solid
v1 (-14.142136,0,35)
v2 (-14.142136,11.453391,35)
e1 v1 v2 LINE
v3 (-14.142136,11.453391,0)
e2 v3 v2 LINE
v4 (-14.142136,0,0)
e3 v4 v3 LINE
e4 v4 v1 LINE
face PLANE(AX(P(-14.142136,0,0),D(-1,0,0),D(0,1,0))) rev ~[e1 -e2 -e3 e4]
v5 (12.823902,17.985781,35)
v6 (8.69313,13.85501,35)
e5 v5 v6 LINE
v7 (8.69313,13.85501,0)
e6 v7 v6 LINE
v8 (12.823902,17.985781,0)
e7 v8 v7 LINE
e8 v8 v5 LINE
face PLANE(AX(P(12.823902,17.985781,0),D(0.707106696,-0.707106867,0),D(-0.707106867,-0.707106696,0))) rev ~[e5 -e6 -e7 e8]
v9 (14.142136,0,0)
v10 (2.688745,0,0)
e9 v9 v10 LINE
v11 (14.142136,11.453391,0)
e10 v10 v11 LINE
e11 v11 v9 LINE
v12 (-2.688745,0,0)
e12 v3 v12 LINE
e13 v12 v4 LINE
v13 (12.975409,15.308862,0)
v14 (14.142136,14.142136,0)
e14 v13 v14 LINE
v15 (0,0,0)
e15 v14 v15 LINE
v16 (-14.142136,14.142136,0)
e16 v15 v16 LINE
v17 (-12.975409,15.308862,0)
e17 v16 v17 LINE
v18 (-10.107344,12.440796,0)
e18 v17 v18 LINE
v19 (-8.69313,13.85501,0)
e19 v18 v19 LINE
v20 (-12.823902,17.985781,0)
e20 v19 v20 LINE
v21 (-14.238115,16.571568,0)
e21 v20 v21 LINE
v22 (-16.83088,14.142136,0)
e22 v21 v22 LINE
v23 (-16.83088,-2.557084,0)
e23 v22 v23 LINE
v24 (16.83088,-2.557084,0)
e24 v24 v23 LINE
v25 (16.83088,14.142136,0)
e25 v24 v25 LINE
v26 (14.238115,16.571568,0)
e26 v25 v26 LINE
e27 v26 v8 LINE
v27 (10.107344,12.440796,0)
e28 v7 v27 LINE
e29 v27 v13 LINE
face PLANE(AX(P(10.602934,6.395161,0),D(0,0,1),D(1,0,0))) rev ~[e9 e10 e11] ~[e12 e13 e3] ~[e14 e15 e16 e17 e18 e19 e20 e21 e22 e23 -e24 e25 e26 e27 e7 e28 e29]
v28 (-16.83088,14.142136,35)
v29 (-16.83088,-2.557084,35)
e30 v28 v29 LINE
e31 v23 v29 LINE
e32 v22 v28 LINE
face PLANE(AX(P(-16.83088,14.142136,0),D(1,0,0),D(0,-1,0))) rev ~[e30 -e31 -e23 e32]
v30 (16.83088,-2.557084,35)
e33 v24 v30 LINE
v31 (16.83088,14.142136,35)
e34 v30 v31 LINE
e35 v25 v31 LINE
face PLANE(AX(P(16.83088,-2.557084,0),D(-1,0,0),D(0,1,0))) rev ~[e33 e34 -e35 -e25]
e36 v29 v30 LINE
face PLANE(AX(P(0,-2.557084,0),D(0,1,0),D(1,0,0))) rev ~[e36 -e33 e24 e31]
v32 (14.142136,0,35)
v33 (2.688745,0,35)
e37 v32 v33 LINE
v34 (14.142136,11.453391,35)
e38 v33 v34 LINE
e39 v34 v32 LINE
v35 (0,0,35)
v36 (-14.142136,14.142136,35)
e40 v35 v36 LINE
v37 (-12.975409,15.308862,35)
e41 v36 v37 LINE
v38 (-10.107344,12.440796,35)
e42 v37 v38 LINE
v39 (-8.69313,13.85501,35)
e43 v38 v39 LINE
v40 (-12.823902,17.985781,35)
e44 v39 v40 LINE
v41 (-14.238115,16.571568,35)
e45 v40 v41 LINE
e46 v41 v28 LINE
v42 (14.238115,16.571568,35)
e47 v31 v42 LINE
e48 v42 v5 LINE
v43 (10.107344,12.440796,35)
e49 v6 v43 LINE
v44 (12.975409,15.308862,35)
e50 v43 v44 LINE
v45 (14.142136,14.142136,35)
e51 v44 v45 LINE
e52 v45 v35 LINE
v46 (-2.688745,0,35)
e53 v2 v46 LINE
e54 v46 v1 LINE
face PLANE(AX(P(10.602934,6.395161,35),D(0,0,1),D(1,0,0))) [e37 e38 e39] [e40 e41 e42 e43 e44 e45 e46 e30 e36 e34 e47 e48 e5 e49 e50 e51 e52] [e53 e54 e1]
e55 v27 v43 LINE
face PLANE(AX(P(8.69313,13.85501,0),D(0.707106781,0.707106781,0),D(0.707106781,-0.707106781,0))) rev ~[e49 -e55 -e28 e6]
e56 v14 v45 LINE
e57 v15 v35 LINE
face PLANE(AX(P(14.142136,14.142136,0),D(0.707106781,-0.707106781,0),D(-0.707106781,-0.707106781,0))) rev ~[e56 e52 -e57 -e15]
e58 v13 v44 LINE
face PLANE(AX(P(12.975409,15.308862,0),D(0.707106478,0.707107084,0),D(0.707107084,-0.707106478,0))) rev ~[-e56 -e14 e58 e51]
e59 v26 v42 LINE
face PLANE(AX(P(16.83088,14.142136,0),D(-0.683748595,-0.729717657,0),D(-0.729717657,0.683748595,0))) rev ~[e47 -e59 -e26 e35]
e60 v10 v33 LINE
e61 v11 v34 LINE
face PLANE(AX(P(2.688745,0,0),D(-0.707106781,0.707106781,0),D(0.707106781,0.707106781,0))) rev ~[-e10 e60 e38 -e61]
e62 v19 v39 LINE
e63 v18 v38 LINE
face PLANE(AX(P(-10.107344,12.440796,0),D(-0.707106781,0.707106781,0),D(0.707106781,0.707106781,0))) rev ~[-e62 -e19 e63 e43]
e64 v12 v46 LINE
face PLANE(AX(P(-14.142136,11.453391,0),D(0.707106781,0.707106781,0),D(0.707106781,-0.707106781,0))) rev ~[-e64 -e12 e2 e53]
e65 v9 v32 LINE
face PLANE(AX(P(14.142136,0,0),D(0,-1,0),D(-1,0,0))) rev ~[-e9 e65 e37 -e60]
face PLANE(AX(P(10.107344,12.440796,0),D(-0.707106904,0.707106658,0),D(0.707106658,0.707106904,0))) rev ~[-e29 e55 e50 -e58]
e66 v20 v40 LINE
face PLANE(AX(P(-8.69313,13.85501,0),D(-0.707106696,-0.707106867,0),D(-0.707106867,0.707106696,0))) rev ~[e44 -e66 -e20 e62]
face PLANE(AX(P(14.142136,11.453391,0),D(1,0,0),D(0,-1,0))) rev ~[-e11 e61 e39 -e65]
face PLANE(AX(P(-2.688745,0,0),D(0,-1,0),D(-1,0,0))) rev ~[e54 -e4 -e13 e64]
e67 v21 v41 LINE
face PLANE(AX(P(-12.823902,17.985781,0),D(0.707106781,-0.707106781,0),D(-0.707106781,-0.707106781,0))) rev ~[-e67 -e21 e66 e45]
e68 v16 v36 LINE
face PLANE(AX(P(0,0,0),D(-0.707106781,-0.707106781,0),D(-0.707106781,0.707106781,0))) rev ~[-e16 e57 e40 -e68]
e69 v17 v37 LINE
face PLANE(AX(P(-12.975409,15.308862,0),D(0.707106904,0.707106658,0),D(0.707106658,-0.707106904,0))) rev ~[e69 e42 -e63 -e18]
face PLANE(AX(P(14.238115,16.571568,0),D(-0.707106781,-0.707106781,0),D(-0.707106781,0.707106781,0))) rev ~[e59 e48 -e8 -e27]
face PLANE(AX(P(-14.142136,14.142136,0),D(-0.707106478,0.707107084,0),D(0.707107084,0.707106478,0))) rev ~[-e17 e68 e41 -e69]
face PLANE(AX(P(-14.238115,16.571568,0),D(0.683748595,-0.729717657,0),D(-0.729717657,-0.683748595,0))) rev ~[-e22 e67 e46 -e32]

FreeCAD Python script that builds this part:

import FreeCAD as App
import Part
import Sketcher

V = App.Vector
Q = App.Units.Quantity


def add_polygon(sketch, points):
    """Adds a closed chain of lines whose ends are joined by coincident constraints."""
    first, n = sketch.GeometryCount, len(points)
    for a, b in zip(points, points[1:] + points[:1]):
        sketch.addGeometry(Part.LineSegment(App.Vector(*a, 0), App.Vector(*b, 0)), False)
    for i in range(n):
        sketch.addConstraint(Sketcher.Constraint("Coincident", first + i, 2, first + (i + 1) % n, 1))

doc = App.newDocument("Part")
body = doc.addObject("PartDesign::Body", "Body")

sketch1 = body.newObject("Sketcher::SketchObject", "Sketch")
sketch1.AttachmentSupport = (doc.getObject("XY_Plane"), [""])
sketch1.MapMode = "FlatFace"
add_polygon(sketch1, [(-16.8, -2.6), (16.8, -2.6), (16.8, 14.1), (14.2, 16.6), (12.8, 18), (8.7, 13.9), (10.1, 12.4), (13, 15.3), (14.1, 14.1), (0, 0), (-14.1, 14.1), (-13, 15.3), (-10.1, 12.4), (-8.7, 13.9), (-12.8, 18), (-14.2, 16.6), (-16.8, 14.1)])
add_polygon(sketch1, [(-14.1, 0), (-14.1, 11.5), (-2.7, 0)])
add_polygon(sketch1, [(2.7, 0), (14.1, 11.5), (14.1, 0)])
sketch1.addConstraint([
    Sketcher.Constraint("Horizontal", 0),
    Sketcher.Constraint("Vertical", 1),
    Sketcher.Constraint("Vertical", 16),
    Sketcher.Constraint("Vertical", 17),
    Sketcher.Constraint("Horizontal", 19),
    Sketcher.Constraint("Vertical", 21),
    Sketcher.Constraint("Horizontal", 22),
    Sketcher.Constraint("Coincident", 8, 2, -1, 1),
    Sketcher.Constraint("Symmetric", 19, 2, 21, 2, -1, 1),
    Sketcher.Constraint("Symmetric", 7, 2, 9, 2, -2),
    Sketcher.Constraint("Symmetric", 6, 2, 10, 2, -2),
    Sketcher.Constraint("Symmetric", 5, 2, 11, 2, -2),
    Sketcher.Constraint("Symmetric", 4, 2, 12, 2, -2),
    Sketcher.Constraint("Symmetric", 3, 2, 13, 2, -2),
    Sketcher.Constraint("Symmetric", 2, 2, 14, 2, -2),
    Sketcher.Constraint("Symmetric", 1, 2, 15, 2, -2),
    Sketcher.Constraint("Symmetric", 18, 2, 22, 2, -2),
    Sketcher.Constraint("Perpendicular", 3, 4),
    Sketcher.Constraint("Perpendicular", 4, 5),
    Sketcher.Constraint("Perpendicular", 5, 6),
    Sketcher.Constraint("Perpendicular", 6, 7),
    Sketcher.Constraint("Perpendicular", 7, 8),
    Sketcher.Constraint("Perpendicular", 8, 9),
    Sketcher.Constraint("Perpendicular", 14, 18),
    Sketcher.Constraint("Perpendicular", 18, 20),
    Sketcher.Constraint("Horizontal", 1, 2, 7, 2),
    Sketcher.Constraint("Vertical", 9, 2, 17, 2),
    Sketcher.Constraint("Equal", 3, 5),
    Sketcher.Constraint("Distance", 3, Q("1.999999 mm")),
    Sketcher.Constraint("Distance", 8, Q("20.000001 mm")),
    Sketcher.Constraint("Distance", 7, Q("1.65 mm")),
    Sketcher.Constraint("DistanceX", 0, 1, 0, 2, Q("33.66176 mm")),
    Sketcher.Constraint("DistanceX", 19, 2, 19, 1, Q("11.453391 mm")),
    Sketcher.Constraint("DistanceY", 1, 1, 1, 2, Q("16.69922 mm")),
    Sketcher.Constraint("DistanceX", 11, 2, 18, 2, Q("7.418599 mm")),
    Sketcher.Constraint("DistanceY", -1, 1, 3, 2, Q("17.985781 mm")),
])
pad1 = body.newObject("PartDesign::Pad", "Pad")
pad1.Profile = sketch1
pad1.Length = 35

doc.recompute()
